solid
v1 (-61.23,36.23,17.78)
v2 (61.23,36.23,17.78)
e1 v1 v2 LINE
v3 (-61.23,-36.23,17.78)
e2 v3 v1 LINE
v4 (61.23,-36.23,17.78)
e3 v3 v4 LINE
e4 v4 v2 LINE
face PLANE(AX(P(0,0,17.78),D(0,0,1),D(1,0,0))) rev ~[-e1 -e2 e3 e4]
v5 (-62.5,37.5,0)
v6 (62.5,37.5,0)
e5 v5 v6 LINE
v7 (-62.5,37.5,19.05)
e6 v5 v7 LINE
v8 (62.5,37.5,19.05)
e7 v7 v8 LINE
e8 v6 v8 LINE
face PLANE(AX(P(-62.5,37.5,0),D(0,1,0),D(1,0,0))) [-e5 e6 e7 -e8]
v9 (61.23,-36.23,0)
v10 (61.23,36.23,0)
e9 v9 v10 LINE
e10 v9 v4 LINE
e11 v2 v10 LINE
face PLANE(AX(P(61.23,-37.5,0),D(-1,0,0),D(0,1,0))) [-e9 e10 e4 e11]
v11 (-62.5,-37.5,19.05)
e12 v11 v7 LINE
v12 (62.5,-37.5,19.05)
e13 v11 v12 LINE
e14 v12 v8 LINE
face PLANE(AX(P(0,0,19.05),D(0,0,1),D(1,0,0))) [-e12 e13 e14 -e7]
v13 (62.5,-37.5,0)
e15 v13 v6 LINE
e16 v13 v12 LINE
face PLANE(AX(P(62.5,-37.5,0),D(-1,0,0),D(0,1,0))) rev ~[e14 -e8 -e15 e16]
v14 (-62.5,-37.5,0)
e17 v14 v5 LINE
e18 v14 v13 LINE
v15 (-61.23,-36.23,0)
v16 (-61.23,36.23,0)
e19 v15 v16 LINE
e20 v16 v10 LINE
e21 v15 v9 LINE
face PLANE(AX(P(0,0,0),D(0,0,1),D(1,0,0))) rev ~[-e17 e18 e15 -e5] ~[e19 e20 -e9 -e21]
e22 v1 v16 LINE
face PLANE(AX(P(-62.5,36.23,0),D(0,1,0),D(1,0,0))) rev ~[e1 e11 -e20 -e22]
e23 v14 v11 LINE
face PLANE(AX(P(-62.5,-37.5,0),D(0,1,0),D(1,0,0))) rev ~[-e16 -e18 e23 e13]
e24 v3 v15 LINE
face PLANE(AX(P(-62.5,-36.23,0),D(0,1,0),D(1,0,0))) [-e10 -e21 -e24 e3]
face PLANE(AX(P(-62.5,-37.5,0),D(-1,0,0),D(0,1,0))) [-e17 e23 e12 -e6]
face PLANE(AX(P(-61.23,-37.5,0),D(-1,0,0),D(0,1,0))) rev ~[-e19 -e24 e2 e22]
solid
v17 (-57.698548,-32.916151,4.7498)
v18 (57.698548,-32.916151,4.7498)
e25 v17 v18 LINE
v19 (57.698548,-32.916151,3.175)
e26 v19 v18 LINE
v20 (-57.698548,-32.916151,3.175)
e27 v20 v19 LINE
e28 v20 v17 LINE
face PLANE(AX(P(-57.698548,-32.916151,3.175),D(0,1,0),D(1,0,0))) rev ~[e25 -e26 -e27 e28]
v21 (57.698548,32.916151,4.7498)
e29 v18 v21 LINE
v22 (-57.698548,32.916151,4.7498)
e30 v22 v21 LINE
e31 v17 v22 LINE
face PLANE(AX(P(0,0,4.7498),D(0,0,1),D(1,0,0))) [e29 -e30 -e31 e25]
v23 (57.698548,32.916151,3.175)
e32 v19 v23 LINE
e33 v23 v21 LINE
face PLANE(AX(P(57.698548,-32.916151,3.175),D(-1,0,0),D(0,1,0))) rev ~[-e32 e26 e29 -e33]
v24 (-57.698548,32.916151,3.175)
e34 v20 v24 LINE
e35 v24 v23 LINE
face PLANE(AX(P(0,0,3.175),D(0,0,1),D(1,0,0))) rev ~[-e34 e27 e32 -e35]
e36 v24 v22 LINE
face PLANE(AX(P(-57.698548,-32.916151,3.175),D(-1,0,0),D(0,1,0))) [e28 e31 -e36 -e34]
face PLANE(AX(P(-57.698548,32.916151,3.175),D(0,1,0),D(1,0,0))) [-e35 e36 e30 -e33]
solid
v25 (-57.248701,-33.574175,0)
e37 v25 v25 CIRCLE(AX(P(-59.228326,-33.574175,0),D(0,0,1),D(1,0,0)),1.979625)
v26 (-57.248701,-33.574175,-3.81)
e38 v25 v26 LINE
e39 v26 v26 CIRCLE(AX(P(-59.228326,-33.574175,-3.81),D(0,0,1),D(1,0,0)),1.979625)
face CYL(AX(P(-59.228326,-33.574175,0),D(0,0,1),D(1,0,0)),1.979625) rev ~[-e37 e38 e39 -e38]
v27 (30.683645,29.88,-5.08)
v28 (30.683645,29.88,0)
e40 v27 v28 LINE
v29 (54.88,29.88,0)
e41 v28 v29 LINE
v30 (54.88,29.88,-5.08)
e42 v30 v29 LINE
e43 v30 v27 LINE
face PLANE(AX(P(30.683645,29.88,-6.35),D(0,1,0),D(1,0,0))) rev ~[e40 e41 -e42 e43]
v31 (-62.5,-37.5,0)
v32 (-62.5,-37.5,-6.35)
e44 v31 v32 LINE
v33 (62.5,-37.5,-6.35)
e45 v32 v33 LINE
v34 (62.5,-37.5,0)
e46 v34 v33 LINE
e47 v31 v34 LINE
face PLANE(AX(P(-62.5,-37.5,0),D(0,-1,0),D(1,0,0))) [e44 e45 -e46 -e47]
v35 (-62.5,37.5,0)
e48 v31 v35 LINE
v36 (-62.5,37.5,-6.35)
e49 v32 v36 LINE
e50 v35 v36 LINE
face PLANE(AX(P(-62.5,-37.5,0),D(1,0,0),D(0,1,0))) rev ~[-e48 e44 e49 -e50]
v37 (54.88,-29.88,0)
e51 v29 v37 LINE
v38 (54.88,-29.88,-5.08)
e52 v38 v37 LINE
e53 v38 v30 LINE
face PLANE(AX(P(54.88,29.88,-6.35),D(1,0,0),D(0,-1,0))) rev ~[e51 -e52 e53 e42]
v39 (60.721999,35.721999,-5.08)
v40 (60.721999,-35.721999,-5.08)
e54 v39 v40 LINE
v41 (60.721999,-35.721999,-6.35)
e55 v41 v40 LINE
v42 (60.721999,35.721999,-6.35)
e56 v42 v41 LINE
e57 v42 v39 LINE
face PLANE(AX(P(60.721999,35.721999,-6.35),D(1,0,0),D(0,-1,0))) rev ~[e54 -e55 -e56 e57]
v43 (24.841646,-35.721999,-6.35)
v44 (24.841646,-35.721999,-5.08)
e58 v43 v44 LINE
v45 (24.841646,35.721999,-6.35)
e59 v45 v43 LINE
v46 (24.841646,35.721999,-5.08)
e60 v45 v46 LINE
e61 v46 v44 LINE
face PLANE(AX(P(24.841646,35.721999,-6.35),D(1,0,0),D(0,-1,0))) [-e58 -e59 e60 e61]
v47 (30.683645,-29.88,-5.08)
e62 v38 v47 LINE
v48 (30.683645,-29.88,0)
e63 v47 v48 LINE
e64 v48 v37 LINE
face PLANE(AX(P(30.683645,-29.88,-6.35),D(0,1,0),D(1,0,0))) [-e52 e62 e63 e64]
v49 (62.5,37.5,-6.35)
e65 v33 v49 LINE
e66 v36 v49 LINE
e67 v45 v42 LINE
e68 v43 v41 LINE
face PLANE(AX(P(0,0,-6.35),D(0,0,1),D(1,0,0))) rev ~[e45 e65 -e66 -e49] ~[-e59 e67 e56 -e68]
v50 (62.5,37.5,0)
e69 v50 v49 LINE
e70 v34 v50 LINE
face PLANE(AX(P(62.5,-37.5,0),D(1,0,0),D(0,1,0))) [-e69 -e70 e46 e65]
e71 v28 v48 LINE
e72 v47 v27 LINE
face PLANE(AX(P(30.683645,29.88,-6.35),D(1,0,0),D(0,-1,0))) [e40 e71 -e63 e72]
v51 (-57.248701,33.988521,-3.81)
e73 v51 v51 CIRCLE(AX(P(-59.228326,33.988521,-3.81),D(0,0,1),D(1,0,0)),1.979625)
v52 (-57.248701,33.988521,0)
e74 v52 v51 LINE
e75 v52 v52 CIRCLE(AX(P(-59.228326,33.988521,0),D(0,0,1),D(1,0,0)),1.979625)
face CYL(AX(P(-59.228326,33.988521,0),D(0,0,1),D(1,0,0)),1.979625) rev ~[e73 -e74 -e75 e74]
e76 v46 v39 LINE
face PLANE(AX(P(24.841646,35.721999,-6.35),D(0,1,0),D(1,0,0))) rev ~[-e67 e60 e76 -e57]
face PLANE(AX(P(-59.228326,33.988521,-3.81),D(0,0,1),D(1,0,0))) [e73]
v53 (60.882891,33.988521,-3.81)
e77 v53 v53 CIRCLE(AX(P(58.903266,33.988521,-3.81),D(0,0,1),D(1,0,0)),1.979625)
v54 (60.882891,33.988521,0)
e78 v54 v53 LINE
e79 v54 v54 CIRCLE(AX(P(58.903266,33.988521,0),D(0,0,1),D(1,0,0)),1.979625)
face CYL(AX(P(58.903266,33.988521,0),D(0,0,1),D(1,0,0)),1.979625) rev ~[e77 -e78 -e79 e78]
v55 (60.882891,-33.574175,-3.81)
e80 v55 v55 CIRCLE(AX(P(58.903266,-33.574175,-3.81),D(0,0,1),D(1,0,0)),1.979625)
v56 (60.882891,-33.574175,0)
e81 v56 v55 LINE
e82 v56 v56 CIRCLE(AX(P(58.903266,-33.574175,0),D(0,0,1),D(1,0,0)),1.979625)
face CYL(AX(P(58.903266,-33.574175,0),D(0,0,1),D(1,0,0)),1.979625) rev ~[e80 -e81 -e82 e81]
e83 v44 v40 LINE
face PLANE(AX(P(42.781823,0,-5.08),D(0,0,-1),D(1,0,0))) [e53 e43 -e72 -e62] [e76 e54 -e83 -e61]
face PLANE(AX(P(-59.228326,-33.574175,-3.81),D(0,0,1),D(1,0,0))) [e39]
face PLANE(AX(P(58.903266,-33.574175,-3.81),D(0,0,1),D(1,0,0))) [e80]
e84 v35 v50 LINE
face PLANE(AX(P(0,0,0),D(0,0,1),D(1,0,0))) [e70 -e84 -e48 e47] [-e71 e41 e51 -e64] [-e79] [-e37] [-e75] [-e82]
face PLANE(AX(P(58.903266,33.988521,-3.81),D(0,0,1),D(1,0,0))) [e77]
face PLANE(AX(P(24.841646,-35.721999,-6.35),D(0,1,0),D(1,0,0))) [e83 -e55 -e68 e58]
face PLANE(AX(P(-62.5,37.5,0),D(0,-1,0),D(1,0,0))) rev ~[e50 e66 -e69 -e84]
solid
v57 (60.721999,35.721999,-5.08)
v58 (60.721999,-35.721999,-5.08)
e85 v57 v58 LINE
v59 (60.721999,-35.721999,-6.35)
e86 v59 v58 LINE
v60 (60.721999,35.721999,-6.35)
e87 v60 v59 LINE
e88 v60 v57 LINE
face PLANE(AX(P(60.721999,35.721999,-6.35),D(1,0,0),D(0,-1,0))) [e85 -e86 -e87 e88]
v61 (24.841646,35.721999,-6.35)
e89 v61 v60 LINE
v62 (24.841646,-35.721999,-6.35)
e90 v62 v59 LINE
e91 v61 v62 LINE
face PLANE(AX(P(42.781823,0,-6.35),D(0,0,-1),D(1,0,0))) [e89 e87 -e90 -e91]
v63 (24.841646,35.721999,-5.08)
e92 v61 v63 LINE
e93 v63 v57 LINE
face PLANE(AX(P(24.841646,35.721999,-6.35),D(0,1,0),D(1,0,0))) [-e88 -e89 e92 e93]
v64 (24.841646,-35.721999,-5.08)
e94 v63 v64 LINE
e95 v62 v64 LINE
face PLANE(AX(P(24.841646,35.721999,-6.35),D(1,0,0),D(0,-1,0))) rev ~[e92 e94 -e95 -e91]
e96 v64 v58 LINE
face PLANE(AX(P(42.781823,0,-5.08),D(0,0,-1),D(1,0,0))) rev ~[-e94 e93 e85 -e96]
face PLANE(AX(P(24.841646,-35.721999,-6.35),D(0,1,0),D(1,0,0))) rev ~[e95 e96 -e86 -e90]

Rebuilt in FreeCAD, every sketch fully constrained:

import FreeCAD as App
import Part
import Sketcher

V = App.Vector
Q = App.Units.Quantity


def faces_at(feature, points):
    """Names of the faces that lie closest to the given points."""
    faces = feature.Shape.Faces
    near = lambda p: min(range(len(faces)), key=lambda i: faces[i].distToShape(Part.Vertex(*p))[0])
    return sorted({f"Face{near(p) + 1}" for p in points})


def add_polygon(sketch, points):
    """Adds a closed chain of lines whose ends are joined by coincident constraints."""
    first, n = sketch.GeometryCount, len(points)
    for a, b in zip(points, points[1:] + points[:1]):
        sketch.addGeometry(Part.LineSegment(App.Vector(*a, 0), App.Vector(*b, 0)), False)
    for i in range(n):
        sketch.addConstraint(Sketcher.Constraint("Coincident", first + i, 2, first + (i + 1) % n, 1))

doc = App.newDocument("Part")
params = doc.addObject("Spreadsheet::Sheet", "Params")
for row, (alias, value) in enumerate([
    ("pad1_length", "0.25 in"),
    ("pocket2_length", "0.05 in"),
    ("pocket3_length", "0.15 in"),
    ("pad2_length", "0.062 in"),
    ("pad3_length", "0.75 in"),
    ("thickness_wall", "0.05 in"),
    ("pad4_length", "0.05 in"),
], start=1):
    params.set(f"A{row}", alias)
    params.set(f"B{row}", "=" + value)
    params.setAlias(f"B{row}", alias)

body = doc.addObject("PartDesign::Body", "Body")

sketch1 = body.newObject("Sketcher::SketchObject", "Sketch")
sketch1.AttachmentSupport = (doc.getObject("XY_Plane"), [""])
sketch1.MapMode = "FlatFace"
add_polygon(sketch1, [(-62, 38), (-62, -38), (62, -38), (62, 38)])
sketch1.addConstraint([
    Sketcher.Constraint("Vertical", 0),
    Sketcher.Constraint("Horizontal", 1),
    Sketcher.Constraint("Vertical", 2),
    Sketcher.Constraint("Horizontal", 3),
    Sketcher.Constraint("Symmetric", 0, 2, 2, 2, -1, 1),
    Sketcher.Constraint("DistanceX", 1, 1, 1, 2, Q("125 mm")),
    Sketcher.Constraint("DistanceY", 0, 2, 0, 1, Q("75 mm")),
])
pad1 = body.newObject("PartDesign::Pad", "Pad")
pad1.Profile = sketch1
pad1.setExpression("Length", "Params.pad1_length")
pad1.Reversed = True

sketch2 = body.newObject("Sketcher::SketchObject", "Sketch001")
sketch2.AttachmentSupport = (doc.getObject("XY_Plane"), [""])
sketch2.MapMode = "FlatFace"
sketch2.AttachmentOffset = App.Placement(V(0, 0, -0.25 * 25.4), App.Rotation())
add_polygon(sketch2, [(31, -30), (31, 30), (55, 30), (55, -30)])
sketch2.addConstraint([
    Sketcher.Constraint("Vertical", 0),
    Sketcher.Constraint("Horizontal", 1),
    Sketcher.Constraint("Vertical", 2),
    Sketcher.Constraint("Horizontal", 3),
    Sketcher.Constraint("DistanceY", 0, 1, 0, 2, Q("59.76 mm")),
    Sketcher.Constraint("DistanceY", -1, 1, 0, 2, Q("29.88 mm")),
    Sketcher.Constraint("DistanceX", -1, 1, 1, 2, Q("54.88 mm")),
    Sketcher.Constraint("DistanceX", 1, 1, 1, 2, Q("24.196355 mm")),
])
pocket1 = body.newObject("PartDesign::Pocket", "Pocket")
pocket1.Profile = sketch2
pocket1.Type = "ThroughAll"
pocket1.Reversed = True

sketch3 = body.newObject("Sketcher::SketchObject", "Sketch002")
sketch3.AttachmentSupport = (doc.getObject("XY_Plane"), [""])
sketch3.MapMode = "FlatFace"
sketch3.AttachmentOffset = App.Placement(V(0, 0, -0.25 * 25.4), App.Rotation())
add_polygon(sketch3, [(25, -36), (25, 36), (61, 36), (61, -36)])
sketch3.addConstraint([
    Sketcher.Constraint("Vertical", 0),
    Sketcher.Constraint("Horizontal", 1),
    Sketcher.Constraint("Vertical", 2),
    Sketcher.Constraint("Horizontal", 3),
    Sketcher.Constraint("DistanceY", 0, 1, 0, 2, Q("71.443999 mm")),
    Sketcher.Constraint("DistanceY", -1, 1, 0, 2, Q("35.721999 mm")),
    Sketcher.Constraint("DistanceX", -1, 1, 1, 2, Q("60.721999 mm")),
    Sketcher.Constraint("DistanceX", 1, 1, 1, 2, Q("35.880354 mm")),
])
pocket2 = body.newObject("PartDesign::Pocket", "Pocket001")
pocket2.Profile = sketch3
pocket2.setExpression("Length", "Params.pocket2_length")
pocket2.Reversed = True

sketch4 = body.newObject("Sketcher::SketchObject", "Sketch003")
sketch4.AttachmentSupport = (doc.getObject("XY_Plane"), [""])
sketch4.MapMode = "FlatFace"
sketch4.addGeometry([
    Part.Circle(V(58.9, 34, 0), V(0, 0, 1), 2),
    Part.Circle(V(58.9, -33.6, 0), V(0, 0, 1), 2),
    Part.Circle(V(-59.2, -33.6, 0), V(0, 0, 1), 2),
    Part.Circle(V(-59.2, 34, 0), V(0, 0, 1), 2),
], False)
sketch4.addConstraint([
    Sketcher.Constraint("Equal", 0, 1),
    Sketcher.Constraint("Equal", 1, 2),
    Sketcher.Constraint("Equal", 2, 3),
    Sketcher.Constraint("Horizontal", 1, 3, 2, 3),
    Sketcher.Constraint("Horizontal", 0, 3, 3, 3),
    Sketcher.Constraint("Vertical", 0, 3, 1, 3),
    Sketcher.Constraint("Vertical", 2, 3, 3, 3),
    Sketcher.Constraint("Diameter", 0, Q("3.95925 mm")),
    Sketcher.Constraint("DistanceY", -1, 1, 0, 3, Q("33.988521 mm")),
    Sketcher.Constraint("DistanceX", -1, 1, 0, 3, Q("58.903266 mm")),
    Sketcher.Constraint("DistanceY", 1, 3, -1, 1, Q("33.574175 mm")),
    Sketcher.Constraint("DistanceX", 2, 3, -1, 1, Q("59.228326 mm")),
])
pocket3 = body.newObject("PartDesign::Pocket", "Pocket002")
pocket3.Profile = sketch4
pocket3.setExpression("Length", "Params.pocket3_length")
body2 = doc.addObject("PartDesign::Body", "Body001")

sketch5 = body2.newObject("Sketcher::SketchObject", "Sketch004")
sketch5.AttachmentSupport = (doc.getObject("XY_Plane001"), [""])
sketch5.MapMode = "FlatFace"
sketch5.AttachmentOffset = App.Placement(V(0, 0, 0.125 * 25.4), App.Rotation())
add_polygon(sketch5, [(-58, 33), (-58, -33), (58, -33), (58, 33)])
sketch5.addConstraint([
    Sketcher.Constraint("Vertical", 0),
    Sketcher.Constraint("Horizontal", 1),
    Sketcher.Constraint("Vertical", 2),
    Sketcher.Constraint("Horizontal", 3),
    Sketcher.Constraint("Symmetric", 0, 2, 2, 2, -1, 1),
    Sketcher.Constraint("DistanceY", 0, 2, 0, 1, Q("65.832302 mm")),
    Sketcher.Constraint("DistanceX", 1, 1, 1, 2, Q("115.397096 mm")),
])
pad2 = body2.newObject("PartDesign::Pad", "Pad001")
pad2.Profile = sketch5
pad2.setExpression("Length", "Params.pad2_length")
body3 = doc.addObject("PartDesign::Body", "Body002")

sketch6 = body3.newObject("Sketcher::SketchObject", "Sketch005")
sketch6.AttachmentSupport = (doc.getObject("XY_Plane002"), [""])
sketch6.MapMode = "FlatFace"
add_polygon(sketch6, [(-62, 38), (-62, -38), (62, -38), (62, 38)])
sketch6.addConstraint([
    Sketcher.Constraint("Vertical", 0),
    Sketcher.Constraint("Horizontal", 1),
    Sketcher.Constraint("Vertical", 2),
    Sketcher.Constraint("Horizontal", 3),
    Sketcher.Constraint("Symmetric", 0, 2, 2, 2, -1, 1),
    Sketcher.Constraint("DistanceX", 1, 1, 1, 2, Q("125 mm")),
    Sketcher.Constraint("DistanceY", 0, 2, 0, 1, Q("75 mm")),
])
pad3 = body3.newObject("PartDesign::Pad", "Pad002")
pad3.Profile = sketch6
pad3.setExpression("Length", "Params.pad3_length")
doc.recompute()

thickness = body3.newObject("PartDesign::Thickness", "Thickness")
thickness.Base = (pad3, faces_at(pad3, [(0, 0, 0)]))
thickness.setExpression("Value", "Params.thickness_wall")
thickness.Reversed = True
thickness.Join = "Arc"
body4 = doc.addObject("PartDesign::Body", "Body003")

sketch7 = body4.newObject("Sketcher::SketchObject", "Sketch006")
sketch7.AttachmentSupport = (doc.getObject("XY_Plane003"), [""])
sketch7.MapMode = "FlatFace"
sketch7.AttachmentOffset = App.Placement(V(0, 0, -0.25 * 25.4), App.Rotation())
add_polygon(sketch7, [(25, -36), (25, 36), (61, 36), (61, -36)])
sketch7.addConstraint([
    Sketcher.Constraint("Vertical", 0),
    Sketcher.Constraint("Horizontal", 1),
    Sketcher.Constraint("Vertical", 2),
    Sketcher.Constraint("Horizontal", 3),
    Sketcher.Constraint("DistanceY", 0, 1, 0, 2, Q("71.443999 mm")),
    Sketcher.Constraint("DistanceY", -1, 1, 0, 2, Q("35.721999 mm")),
    Sketcher.Constraint("DistanceX", -1, 1, 1, 2, Q("60.721999 mm")),
    Sketcher.Constraint("DistanceX", 1, 1, 1, 2, Q("35.880354 mm")),
])
pad4 = body4.newObject("PartDesign::Pad", "Pad003")
pad4.Profile = sketch7
pad4.setExpression("Length", "Params.pad4_length")

doc.recompute()
